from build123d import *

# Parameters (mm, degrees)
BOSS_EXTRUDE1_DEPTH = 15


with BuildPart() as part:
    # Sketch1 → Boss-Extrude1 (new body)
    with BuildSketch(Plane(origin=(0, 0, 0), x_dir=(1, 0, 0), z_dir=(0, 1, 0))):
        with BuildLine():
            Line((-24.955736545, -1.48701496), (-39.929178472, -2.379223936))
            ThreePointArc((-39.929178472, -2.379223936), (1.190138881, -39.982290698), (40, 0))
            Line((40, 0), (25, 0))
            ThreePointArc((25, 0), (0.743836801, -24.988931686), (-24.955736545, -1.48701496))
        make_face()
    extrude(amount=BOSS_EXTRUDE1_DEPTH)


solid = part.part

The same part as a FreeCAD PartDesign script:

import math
import FreeCAD as App
import Part
import Sketcher
Q = App.Units.Quantity

doc = App.newDocument("Part")
params = doc.addObject("Spreadsheet::Sheet", "Params")
for row, (alias, value) in enumerate([
    ("sketch1_radius", "40 mm"),
    ("sketch1_radius2", "25 mm"),
    ("pad1_length", "15 mm"),
], start=1):
    params.set(f"A{row}", alias)
    params.set(f"B{row}", "=" + value)
    params.setAlias(f"B{row}", alias)

body = doc.addObject("PartDesign::Body", "Body")

# Sketch on XZ plane
sketch1 = body.newObject("Sketcher::SketchObject", "Sketch")
sketch1.AttachmentSupport = (doc.getObject("XZ_Plane"), [""])
sketch1.MapMode = "FlatFace"
sketch1.addGeometry(Part.LineSegment(App.Vector(-25, 1, 0), App.Vector(-40, 2, 0)), False)
sketch1.addGeometry(Part.ArcOfCircle(Part.Circle(App.Vector(0, 0, 0), App.Vector(0, 0, 1), 40), math.radians(0), math.radians(177)), False)
sketch1.addGeometry(Part.LineSegment(App.Vector(40, 0, 0), App.Vector(25, 0, 0)), False)
sketch1.addGeometry(Part.ArcOfCircle(Part.Circle(App.Vector(0, 0, 0), App.Vector(0, 0, 1), 25), math.radians(0), math.radians(177)), False)
sketch1.addConstraint(Sketcher.Constraint("Coincident", 0, 2, 1, 2))
sketch1.addConstraint(Sketcher.Constraint("Coincident", 1, 1, 2, 1))
sketch1.addConstraint(Sketcher.Constraint("Coincident", 2, 2, 3, 1))
sketch1.addConstraint(Sketcher.Constraint("Coincident", 3, 2, 0, 1))
sketch1.addConstraint(Sketcher.Constraint("Horizontal", 2))
sketch1.addConstraint(Sketcher.Constraint("Coincident", 1, 3, -1, 1))
sketch1.addConstraint(Sketcher.Constraint("Coincident", 3, 3, -1, 1))
sketch1.addConstraint(Sketcher.Constraint("PointOnObject", 1, 1, -1))
sketch1.addConstraint(Sketcher.Constraint("Radius", 1, 40.0))
sketch1.addConstraint(Sketcher.Constraint("Radius", 3, 25.0))
sketch1.addConstraint(Sketcher.Constraint("Angle", 0, Q("176.59 deg")))
sketch1.addConstraint(Sketcher.Constraint("DistanceX", 0, 2, -1, 1, 39.929178))
sketch1.setExpression("Constraints[8]", "Params.sketch1_radius")
sketch1.setExpression("Constraints[9]", "Params.sketch1_radius2")
pad1 = body.newObject("PartDesign::Pad", "Pad")
pad1.Profile = sketch1
pad1.setExpression("Length", "Params.pad1_length")
pad1.Reversed = True

doc.recompute()
